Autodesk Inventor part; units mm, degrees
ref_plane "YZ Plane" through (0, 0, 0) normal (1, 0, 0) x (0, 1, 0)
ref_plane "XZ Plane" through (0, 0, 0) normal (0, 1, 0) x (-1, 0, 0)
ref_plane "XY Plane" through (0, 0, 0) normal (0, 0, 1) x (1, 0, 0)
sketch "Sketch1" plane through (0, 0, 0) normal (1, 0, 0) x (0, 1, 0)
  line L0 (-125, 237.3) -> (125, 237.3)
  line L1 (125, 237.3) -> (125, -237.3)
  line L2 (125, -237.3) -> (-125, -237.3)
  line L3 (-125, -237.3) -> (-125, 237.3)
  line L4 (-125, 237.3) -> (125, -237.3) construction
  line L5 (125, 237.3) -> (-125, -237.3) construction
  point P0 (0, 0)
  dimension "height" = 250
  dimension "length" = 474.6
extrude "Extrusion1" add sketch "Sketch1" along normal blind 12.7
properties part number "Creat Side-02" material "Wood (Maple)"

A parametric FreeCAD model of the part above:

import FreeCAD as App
import Part
import Sketcher
Q = App.Units.Quantity


def add_polygon(sketch, points):
    """Adds a closed chain of lines whose ends are joined by coincident constraints."""
    first, n = sketch.GeometryCount, len(points)
    for a, b in zip(points, points[1:] + points[:1]):
        sketch.addGeometry(Part.LineSegment(App.Vector(*a, 0), App.Vector(*b, 0)), False)
    for i in range(n):
        sketch.addConstraint(Sketcher.Constraint("Coincident", first + i, 2, first + (i + 1) % n, 1))

doc = App.newDocument("Part")
body = doc.addObject("PartDesign::Body", "Body")

# Sketch on YZ plane
sketch1 = body.newObject("Sketcher::SketchObject", "Sketch")
sketch1.AttachmentSupport = (doc.getObject("YZ_Plane"), [""])
sketch1.MapMode = "FlatFace"
add_polygon(sketch1, [(125, 237), (-125, 237), (-125, -237), (125, -237)])  # lines 0-3
sketch1.addConstraint([
    Sketcher.Constraint("Horizontal", 0),
    Sketcher.Constraint("Vertical", 1),
    Sketcher.Constraint("Horizontal", 2),
    Sketcher.Constraint("Vertical", 3),
    Sketcher.Constraint("Symmetric", 0, 2, 2, 2, -1, 1),
    Sketcher.Constraint("DistanceX", 0, 2, 0, 1, Q("250 mm")),
    Sketcher.Constraint("DistanceY", 1, 2, 1, 1, Q("474.6 mm")),
])
pad1 = body.newObject("PartDesign::Pad", "Pad")
pad1.Profile = sketch1
pad1.Length = 12.7

doc.recompute()
